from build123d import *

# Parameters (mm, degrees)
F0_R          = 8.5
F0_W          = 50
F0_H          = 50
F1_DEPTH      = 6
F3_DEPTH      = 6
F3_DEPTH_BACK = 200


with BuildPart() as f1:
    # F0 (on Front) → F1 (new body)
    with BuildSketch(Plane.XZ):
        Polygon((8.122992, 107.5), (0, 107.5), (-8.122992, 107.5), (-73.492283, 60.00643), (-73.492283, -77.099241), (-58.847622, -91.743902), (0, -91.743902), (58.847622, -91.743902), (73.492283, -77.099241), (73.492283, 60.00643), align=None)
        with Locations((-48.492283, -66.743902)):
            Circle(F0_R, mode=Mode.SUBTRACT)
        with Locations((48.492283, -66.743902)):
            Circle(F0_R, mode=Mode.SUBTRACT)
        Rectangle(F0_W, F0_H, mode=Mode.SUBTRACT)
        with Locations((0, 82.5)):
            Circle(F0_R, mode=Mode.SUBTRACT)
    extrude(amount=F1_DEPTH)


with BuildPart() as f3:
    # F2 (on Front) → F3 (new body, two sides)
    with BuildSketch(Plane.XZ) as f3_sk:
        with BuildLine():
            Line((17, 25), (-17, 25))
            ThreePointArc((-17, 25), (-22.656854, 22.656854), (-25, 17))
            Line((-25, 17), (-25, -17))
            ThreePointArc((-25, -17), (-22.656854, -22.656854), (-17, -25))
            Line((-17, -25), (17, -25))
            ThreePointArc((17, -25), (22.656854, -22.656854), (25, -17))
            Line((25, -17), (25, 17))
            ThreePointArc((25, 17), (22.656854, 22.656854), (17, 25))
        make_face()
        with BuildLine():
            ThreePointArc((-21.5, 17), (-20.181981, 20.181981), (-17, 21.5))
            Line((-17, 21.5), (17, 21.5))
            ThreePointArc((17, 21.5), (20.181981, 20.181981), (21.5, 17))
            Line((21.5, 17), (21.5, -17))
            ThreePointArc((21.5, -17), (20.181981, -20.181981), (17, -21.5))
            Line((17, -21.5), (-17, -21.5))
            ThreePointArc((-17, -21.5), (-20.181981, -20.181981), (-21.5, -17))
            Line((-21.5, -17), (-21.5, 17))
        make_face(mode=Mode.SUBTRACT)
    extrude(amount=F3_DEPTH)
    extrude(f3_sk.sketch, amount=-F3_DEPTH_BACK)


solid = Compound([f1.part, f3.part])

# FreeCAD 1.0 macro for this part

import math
import FreeCAD as App
import Part
import Sketcher
Q = App.Units.Quantity


def add_polygon(sketch, points):
    """Adds a closed chain of lines whose ends are joined by coincident constraints."""
    first, n = sketch.GeometryCount, len(points)
    for a, b in zip(points, points[1:] + points[:1]):
        sketch.addGeometry(Part.LineSegment(App.Vector(*a, 0), App.Vector(*b, 0)), False)
    for i in range(n):
        sketch.addConstraint(Sketcher.Constraint("Coincident", first + i, 2, first + (i + 1) % n, 1))

doc = App.newDocument("Part")
body = doc.addObject("PartDesign::Body", "Body")

# Sketch on XZ plane
sketch1 = doc.addObject("Sketcher::SketchObject", "Sketch")
body.addObject(sketch1)
sketch1.AttachmentSupport = (doc.XZ_Plane, [""])
sketch1.MapMode = "FlatFace"
add_polygon(sketch1, [(8.122992, 107.5), (-8.122992, 107.5), (-73.492283, 60.00643), (-73.492283, -77.099241), (-58.847622, -91.743902), (58.847622, -91.743902), (73.492283, -77.099241), (73.492283, 60.00643)])  # lines 0-7
sketch1.addGeometry(Part.Circle(App.Vector(-48.492283, -66.743902, 0), App.Vector(0, 0, 1), 8.5), False)  # 8
sketch1.addGeometry(Part.Circle(App.Vector(48.492283, -66.743902, 0), App.Vector(0, 0, 1), 8.5), False)  # 9
add_polygon(sketch1, [(25, -25), (-25, -25), (-25, 25), (25, 25)])  # lines 10-13
sketch1.addGeometry(Part.Circle(App.Vector(0, 82.5, 0), App.Vector(0, 0, 1), 8.5), False)  # 14
sketch1.addConstraint([
    Sketcher.Constraint("Horizontal", 0),
    Sketcher.Constraint("Vertical", 2),
    Sketcher.Constraint("Horizontal", 4),
    Sketcher.Constraint("Vertical", 6),
    Sketcher.Constraint("Horizontal", 10),
    Sketcher.Constraint("Vertical", 11),
    Sketcher.Constraint("Horizontal", 12),
    Sketcher.Constraint("Vertical", 13),
    Sketcher.Constraint("Equal", 8, 9),
    Sketcher.Constraint("Equal", 9, 14),
    Sketcher.Constraint("Symmetric", 10, 2, 12, 2, -1, 1),
    Sketcher.Constraint("Symmetric", 8, 3, 9, 3, -2),
    Sketcher.Constraint("Symmetric", 2, 2, 5, 2, -2),
    Sketcher.Constraint("PointOnObject", 14, 3, -2),
    Sketcher.Constraint("Perpendicular", 3, 5),
    Sketcher.Constraint("Horizontal", 1, 2, 6, 2),
    Sketcher.Constraint("Equal", 12, 11),
    Sketcher.Constraint("Equal", 3, 5),
    Sketcher.Constraint("Equal", 1, 7),
    Sketcher.Constraint("Diameter", 8, 17.0),
    Sketcher.Constraint("DistanceX", 10, 2, 10, 1, 50.0),
    Sketcher.Constraint("Angle", 1, Q("-144 deg")),
    Sketcher.Constraint("DistanceY", 14, 3, 0, 2, 25.0),
    Sketcher.Constraint("DistanceX", 1, 2, 8, 3, 25.0),
    Sketcher.Constraint("DistanceY", 3, 2, 8, 3, 25.0),
    Sketcher.Constraint("DistanceY", -1, 1, 14, 3, 82.5),
    Sketcher.Constraint("DistanceY", 2, 2, 2, 1, 137.105671),
    Sketcher.Constraint("DistanceY", 8, 3, 14, 3, 149.243902),
    Sketcher.Constraint("Distance", 3, 20.710678),
    Sketcher.Constraint("DistanceX", 0, 2, 0, 1, 16.245984),
])
pad1 = doc.addObject("PartDesign::Pad", "Pad")
body.addObject(pad1)
pad1.Profile = sketch1
pad1.Length = 6
body2 = doc.addObject("PartDesign::Body", "Body001")

# Sketch on XZ plane
sketch2 = doc.addObject("Sketcher::SketchObject", "Sketch001")
body2.addObject(sketch2)
sketch2.AttachmentSupport = (doc.getObject("XZ_Plane001"), [""])
sketch2.MapMode = "FlatFace"
sketch2.addGeometry([
    Part.LineSegment(App.Vector(17, 25, 0), App.Vector(-17, 25, 0)),  # 0
    Part.ArcOfCircle(Part.Circle(App.Vector(-16.999999, 16.999999, 0), App.Vector(0, 0, 1), 8.000001), math.radians(90.000006), math.radians(179.999994)),  # 1
    Part.LineSegment(App.Vector(-25, 17, 0), App.Vector(-25, -17, 0)),  # 2
    Part.ArcOfCircle(Part.Circle(App.Vector(-16.999999, -16.999999, 0), App.Vector(0, 0, 1), 8.000001), math.radians(-179.999994), math.radians(-90.000006)),  # 3
    Part.LineSegment(App.Vector(-17, -25, 0), App.Vector(17, -25, 0)),  # 4
    Part.ArcOfCircle(Part.Circle(App.Vector(16.999999, -16.999999, 0), App.Vector(0, 0, 1), 8.000001), math.radians(-89.999994), math.radians(-0.000006)),  # 5
    Part.LineSegment(App.Vector(25, -17, 0), App.Vector(25, 17, 0)),  # 6
    Part.ArcOfCircle(Part.Circle(App.Vector(16.999999, 16.999999, 0), App.Vector(0, 0, 1), 8.000001), math.radians(0.000006), math.radians(89.999994)),  # 7
    Part.LineSegment(App.Vector(-21.5, -17, 0), App.Vector(-21.5, 17, 0)),  # 8
    Part.ArcOfCircle(Part.Circle(App.Vector(-17.000002, 17.000002, 0), App.Vector(0, 0, 1), 4.499998), math.radians(89.999979), math.radians(180.000021)),  # 9
    Part.LineSegment(App.Vector(-17, 21.5, 0), App.Vector(17, 21.5, 0)),  # 10
    Part.ArcOfCircle(Part.Circle(App.Vector(17.000002, 17.000002, 0), App.Vector(0, 0, 1), 4.499998), math.radians(-0.000021), math.radians(90.000021)),  # 11
    Part.LineSegment(App.Vector(21.5, 17, 0), App.Vector(21.5, -17, 0)),  # 12
    Part.ArcOfCircle(Part.Circle(App.Vector(17.000002, -17.000002, 0), App.Vector(0, 0, 1), 4.499998), math.radians(-90.000021), math.radians(0.000021)),  # 13
    Part.LineSegment(App.Vector(17, -21.5, 0), App.Vector(-17, -21.5, 0)),  # 14
    Part.ArcOfCircle(Part.Circle(App.Vector(-17.000002, -17.000002, 0), App.Vector(0, 0, 1), 4.499998), math.radians(179.999979), math.radians(270.000021)),  # 15
], False)
sketch2.addConstraint([
    Sketcher.Constraint("Tangent", 0, 2, 1, 1),
    Sketcher.Constraint("Tangent", 1, 2, 2, 1),
    Sketcher.Constraint("Tangent", 2, 2, 3, 1),
    Sketcher.Constraint("Tangent", 3, 2, 4, 1),
    Sketcher.Constraint("Tangent", 4, 2, 5, 1),
    Sketcher.Constraint("Tangent", 5, 2, 6, 1),
    Sketcher.Constraint("Tangent", 6, 2, 7, 1),
    Sketcher.Constraint("Tangent", 7, 2, 0, 1),
    Sketcher.Constraint("Tangent", 8, 2, 9, 2),
    Sketcher.Constraint("Tangent", 9, 1, 10, 1),
    Sketcher.Constraint("Tangent", 10, 2, 11, 2),
    Sketcher.Constraint("Tangent", 11, 1, 12, 1),
    Sketcher.Constraint("Tangent", 12, 2, 13, 2),
    Sketcher.Constraint("Tangent", 13, 1, 14, 1),
    Sketcher.Constraint("Tangent", 14, 2, 15, 2),
    Sketcher.Constraint("Tangent", 15, 1, 8, 1),
    Sketcher.Constraint("Horizontal", 0),
    Sketcher.Constraint("Vertical", 2),
    Sketcher.Constraint("Horizontal", 4),
    Sketcher.Constraint("Vertical", 6),
    Sketcher.Constraint("Vertical", 8),
    Sketcher.Constraint("Horizontal", 10),
    Sketcher.Constraint("Vertical", 12),
    Sketcher.Constraint("Horizontal", 14),
    Sketcher.Constraint("Coincident", 9, 3, 1, 3),
    Sketcher.Constraint("Coincident", 11, 3, 7, 3),
    Sketcher.Constraint("Coincident", 13, 3, 5, 3),
    Sketcher.Constraint("Equal", 1, 3),
    Sketcher.Constraint("Equal", 3, 5),
    Sketcher.Constraint("Equal", 5, 7),
    Sketcher.Constraint("Equal", 13, 15),
    Sketcher.Constraint("Symmetric", 1, 3, 5, 3, -1, 1),
    Sketcher.Constraint("Equal", 14, 2),
    Sketcher.Constraint("Radius", 1, 8.000001),
    Sketcher.Constraint("Radius", 9, 4.499998),
    Sketcher.Constraint("DistanceX", 0, 2, 0, 1, 34.0),
])
pad2 = doc.addObject("PartDesign::Pad", "Pad001")
body2.addObject(pad2)
pad2.Profile = sketch2
pad2.Type = "TwoLengths"
pad2.Length = 6
pad2.Length2 = 200

doc.recompute()
